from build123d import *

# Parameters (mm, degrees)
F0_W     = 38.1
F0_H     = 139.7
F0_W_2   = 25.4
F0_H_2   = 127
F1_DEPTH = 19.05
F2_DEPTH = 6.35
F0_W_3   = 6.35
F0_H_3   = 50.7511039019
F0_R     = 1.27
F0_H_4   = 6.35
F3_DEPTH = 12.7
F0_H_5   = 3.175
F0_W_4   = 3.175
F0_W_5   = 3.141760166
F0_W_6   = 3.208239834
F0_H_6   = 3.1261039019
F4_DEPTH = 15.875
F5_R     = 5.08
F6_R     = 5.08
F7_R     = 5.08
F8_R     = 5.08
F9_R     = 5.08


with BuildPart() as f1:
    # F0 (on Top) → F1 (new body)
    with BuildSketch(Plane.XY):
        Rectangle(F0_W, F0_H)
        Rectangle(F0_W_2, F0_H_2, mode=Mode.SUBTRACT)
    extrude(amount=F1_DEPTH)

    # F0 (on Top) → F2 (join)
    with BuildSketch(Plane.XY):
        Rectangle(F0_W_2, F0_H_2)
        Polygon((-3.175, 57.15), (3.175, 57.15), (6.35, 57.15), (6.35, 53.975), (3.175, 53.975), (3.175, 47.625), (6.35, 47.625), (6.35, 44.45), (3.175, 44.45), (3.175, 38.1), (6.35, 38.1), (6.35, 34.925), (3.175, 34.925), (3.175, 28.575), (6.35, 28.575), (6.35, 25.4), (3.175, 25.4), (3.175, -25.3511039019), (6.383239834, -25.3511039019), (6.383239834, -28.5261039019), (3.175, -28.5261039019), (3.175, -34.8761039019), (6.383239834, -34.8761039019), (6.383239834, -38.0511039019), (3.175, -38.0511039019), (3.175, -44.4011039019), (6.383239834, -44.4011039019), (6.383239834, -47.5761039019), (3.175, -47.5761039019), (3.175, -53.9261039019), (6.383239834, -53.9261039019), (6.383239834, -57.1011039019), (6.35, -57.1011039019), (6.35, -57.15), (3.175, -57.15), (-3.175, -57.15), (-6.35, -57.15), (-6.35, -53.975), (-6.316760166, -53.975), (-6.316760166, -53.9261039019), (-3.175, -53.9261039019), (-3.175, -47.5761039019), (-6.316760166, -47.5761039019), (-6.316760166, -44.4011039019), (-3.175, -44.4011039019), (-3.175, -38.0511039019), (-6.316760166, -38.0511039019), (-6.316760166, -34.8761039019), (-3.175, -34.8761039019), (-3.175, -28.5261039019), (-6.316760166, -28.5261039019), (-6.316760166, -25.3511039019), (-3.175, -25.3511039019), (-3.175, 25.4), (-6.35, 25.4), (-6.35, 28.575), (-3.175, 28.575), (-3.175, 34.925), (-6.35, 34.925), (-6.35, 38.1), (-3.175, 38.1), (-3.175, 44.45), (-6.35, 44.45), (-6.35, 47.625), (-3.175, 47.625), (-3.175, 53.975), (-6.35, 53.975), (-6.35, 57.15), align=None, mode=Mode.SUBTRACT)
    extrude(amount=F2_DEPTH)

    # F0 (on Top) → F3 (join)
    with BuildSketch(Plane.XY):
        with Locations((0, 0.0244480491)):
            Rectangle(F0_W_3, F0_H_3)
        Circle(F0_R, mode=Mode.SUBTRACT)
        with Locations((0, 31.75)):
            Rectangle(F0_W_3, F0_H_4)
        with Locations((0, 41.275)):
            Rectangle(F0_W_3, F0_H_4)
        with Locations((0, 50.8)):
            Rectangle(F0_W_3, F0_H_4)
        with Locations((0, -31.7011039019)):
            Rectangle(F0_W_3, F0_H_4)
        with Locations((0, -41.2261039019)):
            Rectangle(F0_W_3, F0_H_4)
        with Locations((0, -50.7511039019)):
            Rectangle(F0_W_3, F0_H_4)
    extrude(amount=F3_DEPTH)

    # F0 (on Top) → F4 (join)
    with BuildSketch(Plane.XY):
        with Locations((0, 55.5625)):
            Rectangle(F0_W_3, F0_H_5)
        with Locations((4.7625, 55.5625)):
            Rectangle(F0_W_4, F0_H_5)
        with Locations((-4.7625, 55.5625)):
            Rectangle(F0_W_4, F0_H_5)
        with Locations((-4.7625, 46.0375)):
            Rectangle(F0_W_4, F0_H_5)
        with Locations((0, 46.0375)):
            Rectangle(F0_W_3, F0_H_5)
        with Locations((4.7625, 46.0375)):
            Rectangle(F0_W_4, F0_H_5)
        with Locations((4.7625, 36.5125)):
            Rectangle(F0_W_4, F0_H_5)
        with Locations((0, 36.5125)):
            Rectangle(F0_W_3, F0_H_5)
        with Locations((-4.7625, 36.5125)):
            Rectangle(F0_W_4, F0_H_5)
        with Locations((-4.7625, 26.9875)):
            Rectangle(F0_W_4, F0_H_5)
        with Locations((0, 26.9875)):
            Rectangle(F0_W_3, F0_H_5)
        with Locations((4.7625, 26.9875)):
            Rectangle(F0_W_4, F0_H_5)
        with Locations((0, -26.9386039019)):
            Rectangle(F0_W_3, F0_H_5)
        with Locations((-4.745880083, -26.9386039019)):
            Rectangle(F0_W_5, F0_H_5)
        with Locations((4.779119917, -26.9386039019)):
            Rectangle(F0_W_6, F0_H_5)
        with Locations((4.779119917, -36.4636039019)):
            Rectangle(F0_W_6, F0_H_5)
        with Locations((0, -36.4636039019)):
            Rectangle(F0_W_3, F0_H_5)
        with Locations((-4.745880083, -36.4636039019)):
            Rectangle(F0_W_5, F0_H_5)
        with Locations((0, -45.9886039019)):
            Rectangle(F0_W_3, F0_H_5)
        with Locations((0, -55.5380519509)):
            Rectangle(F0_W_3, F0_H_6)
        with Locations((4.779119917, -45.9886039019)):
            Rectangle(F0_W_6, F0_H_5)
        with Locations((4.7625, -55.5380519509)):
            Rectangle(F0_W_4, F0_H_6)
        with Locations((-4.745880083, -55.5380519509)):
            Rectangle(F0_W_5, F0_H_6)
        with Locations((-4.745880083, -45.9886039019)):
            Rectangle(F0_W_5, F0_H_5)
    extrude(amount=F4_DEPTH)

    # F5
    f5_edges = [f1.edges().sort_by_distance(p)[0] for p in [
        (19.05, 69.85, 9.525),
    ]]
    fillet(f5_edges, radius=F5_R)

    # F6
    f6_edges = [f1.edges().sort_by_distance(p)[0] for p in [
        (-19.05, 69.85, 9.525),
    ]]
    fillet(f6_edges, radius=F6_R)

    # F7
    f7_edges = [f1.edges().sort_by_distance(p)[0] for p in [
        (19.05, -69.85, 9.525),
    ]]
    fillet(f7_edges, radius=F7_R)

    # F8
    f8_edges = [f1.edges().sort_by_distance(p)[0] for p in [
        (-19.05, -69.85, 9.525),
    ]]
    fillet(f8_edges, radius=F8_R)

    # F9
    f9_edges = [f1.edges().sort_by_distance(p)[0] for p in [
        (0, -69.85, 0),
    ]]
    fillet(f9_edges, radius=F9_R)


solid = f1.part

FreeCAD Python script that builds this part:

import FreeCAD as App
import Part
import Sketcher
from FreeCAD import Vector
Q = App.Units.Quantity


def edges_at(feature, points):
    """Names of the edges that pass closest to the given points."""
    edges = feature.Shape.Edges
    near = lambda p: min(range(len(edges)), key=lambda i: edges[i].distToShape(Part.Vertex(*p))[0])
    return sorted({f"Edge{near(p) + 1}" for p in points})


def add_polygon(sketch, points):
    """Adds a closed chain of lines whose ends are joined by coincident constraints."""
    first, n = sketch.GeometryCount, len(points)
    for a, b in zip(points, points[1:] + points[:1]):
        sketch.addGeometry(Part.LineSegment(App.Vector(*a, 0), App.Vector(*b, 0)), False)
    for i in range(n):
        sketch.addConstraint(Sketcher.Constraint("Coincident", first + i, 2, first + (i + 1) % n, 1))

doc = App.newDocument("Part")
params = doc.addObject("Spreadsheet::Sheet", "Params")
for row, (alias, value) in enumerate([
    ("sketch1_width", "1 in"),
    ("sketch1_height", "5 in"),
    ("sketch1_width2", "1.5 in"),
    ("sketch1_height2", "5.5 in"),
    ("pad1_length", "0.75 in"),
    ("sketch2_width", "1 in"),
    ("sketch2_height", "5 in"),
    ("sketch2_width2", "0.5 in"),
    ("sketch2_height2", "0.25 in"),
    ("pad2_length", "0.25 in"),
    ("sketch3_diameter", "0.1 in"),
    ("sketch3_width", "0.25 in"),
    ("pad3_length", "0.5 in"),
    ("sketch4_width", "0.5 in"),
    ("sketch4_height", "0.125 in"),
    ("pad4_length", "0.625 in"),
    ("fillet_radius", "0.2 in"),
    ("fillet2_radius", "0.2 in"),
    ("fillet3_radius", "0.2 in"),
    ("fillet4_radius", "0.2 in"),
    ("fillet5_radius", "0.2 in"),
], start=1):
    params.set(f"A{row}", alias)
    params.set(f"B{row}", "=" + value)
    params.setAlias(f"B{row}", alias)

body = doc.addObject("PartDesign::Body", "Body")
body.AllowCompound = True

# Sketch on XY plane
sketch1 = doc.addObject("Sketcher::SketchObject", "Sketch")
body.addObject(sketch1)
sketch1.AttachmentSupport = (doc.XY_Plane, [""])
sketch1.MapMode = "FlatFace"
add_polygon(sketch1, [(-19, 70), (-19, -70), (19, -70), (19, 70)])  # lines 0-3
add_polygon(sketch1, [(13, -64), (-13, -64), (-13, 64), (13, 64)])  # lines 4-7
sketch1.addConstraint([
    Sketcher.Constraint("Vertical", 0),
    Sketcher.Constraint("Horizontal", 1),
    Sketcher.Constraint("Vertical", 2),
    Sketcher.Constraint("Horizontal", 3),
    Sketcher.Constraint("Horizontal", 4),
    Sketcher.Constraint("Vertical", 5),
    Sketcher.Constraint("Horizontal", 6),
    Sketcher.Constraint("Vertical", 7),
    Sketcher.Constraint("Symmetric", 0, 2, 2, 2, -1, 1),
    Sketcher.Constraint("Symmetric", 4, 2, 6, 2, -1, 1),
    Sketcher.Constraint("DistanceX", 4, 2, 4, 1, Q("1 in")),
    Sketcher.Constraint("DistanceY", 5, 1, 5, 2, Q("5 in")),
    Sketcher.Constraint("DistanceX", 1, 1, 1, 2, Q("1.5 in")),
    Sketcher.Constraint("DistanceY", 0, 2, 0, 1, Q("5.5 in")),
])
sketch1.setExpression("Constraints[18]", "Params.sketch1_width")
sketch1.setExpression("Constraints[19]", "Params.sketch1_height")
sketch1.setExpression("Constraints[20]", "Params.sketch1_width2")
sketch1.setExpression("Constraints[21]", "Params.sketch1_height2")
pad1 = doc.addObject("PartDesign::Pad", "Pad")
body.addObject(pad1)
pad1.Profile = sketch1
pad1.setExpression("Length", "Params.pad1_length")

# Sketch on XY plane
sketch2 = doc.addObject("Sketcher::SketchObject", "Sketch001")
body.addObject(sketch2)
sketch2.AttachmentSupport = (doc.XY_Plane, [""])
sketch2.MapMode = "FlatFace"
add_polygon(sketch2, [(-12.7, 63.5), (-12.7, -63.5), (12.7, -63.5), (12.7, 63.5)])  # lines 0-3
add_polygon(sketch2, [(-6.35, 57.15), (6.35, 57.15), (6.35, 53.975), (3.175, 53.975), (3.175, 47.625), (6.35, 47.625), (6.35, 44.45), (3.175, 44.45), (3.175, 38.1), (6.35, 38.1), (6.35, 34.925), (3.175, 34.925), (3.175, 28.575), (6.35, 28.575), (6.35, 25.4), (3.175, 25.4), (3.175, -25.351), (6.383, -25.351), (6.383, -28.526), (3.175, -28.526), (3.175, -34.876), (6.383, -34.876), (6.383, -38.051), (3.175, -38.051), (3.175, -44.401), (6.383, -44.401), (6.383, -47.576), (3.175, -47.576), (3.175, -53.926), (6.383, -53.926), (6.383, -57.101), (6.35, -57.101), (6.35, -57.15), (-6.35, -57.15), (-6.35, -53.975), (-6.317, -53.975), (-6.317, -53.926), (-3.175, -53.926), (-3.175, -47.576), (-6.317, -47.576), (-6.317, -44.401), (-3.175, -44.401), (-3.175, -38.051), (-6.317, -38.051), (-6.317, -34.876), (-3.175, -34.876), (-3.175, -28.526), (-6.317, -28.526), (-6.317, -25.351), (-3.175, -25.351), (-3.175, 25.4), (-6.35, 25.4), (-6.35, 28.575), (-3.175, 28.575), (-3.175, 34.925), (-6.35, 34.925), (-6.35, 38.1), (-3.175, 38.1), (-3.175, 44.45), (-6.35, 44.45), (-6.35, 47.625), (-3.175, 47.625), (-3.175, 53.975), (-6.35, 53.975)])  # lines 4-67
sketch2.addConstraint([
    Sketcher.Constraint("Vertical", 0),
    Sketcher.Constraint("Horizontal", 1),
    Sketcher.Constraint("Vertical", 2),
    Sketcher.Constraint("Horizontal", 3),
    Sketcher.Constraint("Horizontal", 4),
    Sketcher.Constraint("Vertical", 5),
    Sketcher.Constraint("Horizontal", 6),
    Sketcher.Constraint("Vertical", 7),
    Sketcher.Constraint("Horizontal", 8),
    Sketcher.Constraint("Vertical", 9),
    Sketcher.Constraint("Horizontal", 10),
    Sketcher.Constraint("Vertical", 11),
    Sketcher.Constraint("Horizontal", 12),
    Sketcher.Constraint("Vertical", 13),
    Sketcher.Constraint("Horizontal", 14),
    Sketcher.Constraint("Vertical", 15),
    Sketcher.Constraint("Horizontal", 16),
    Sketcher.Constraint("Vertical", 17),
    Sketcher.Constraint("Horizontal", 18),
    Sketcher.Constraint("Vertical", 19),
    Sketcher.Constraint("Horizontal", 20),
    Sketcher.Constraint("Vertical", 21),
    Sketcher.Constraint("Horizontal", 22),
    Sketcher.Constraint("Vertical", 23),
    Sketcher.Constraint("Horizontal", 24),
    Sketcher.Constraint("Vertical", 25),
    Sketcher.Constraint("Horizontal", 26),
    Sketcher.Constraint("Vertical", 27),
    Sketcher.Constraint("Horizontal", 28),
    Sketcher.Constraint("Vertical", 29),
    Sketcher.Constraint("Horizontal", 30),
    Sketcher.Constraint("Vertical", 31),
    Sketcher.Constraint("Horizontal", 32),
    Sketcher.Constraint("Vertical", 33),
    Sketcher.Constraint("Horizontal", 34),
    Sketcher.Constraint("Vertical", 35),
    Sketcher.Constraint("Horizontal", 36),
    Sketcher.Constraint("Vertical", 37),
    Sketcher.Constraint("Horizontal", 38),
    Sketcher.Constraint("Vertical", 39),
    Sketcher.Constraint("Horizontal", 40),
    Sketcher.Constraint("Vertical", 41),
    Sketcher.Constraint("Horizontal", 42),
    Sketcher.Constraint("Vertical", 43),
    Sketcher.Constraint("Horizontal", 44),
    Sketcher.Constraint("Vertical", 45),
    Sketcher.Constraint("Horizontal", 46),
    Sketcher.Constraint("Vertical", 47),
    Sketcher.Constraint("Horizontal", 48),
    Sketcher.Constraint("Vertical", 49),
    Sketcher.Constraint("Horizontal", 50),
    Sketcher.Constraint("Vertical", 51),
    Sketcher.Constraint("Horizontal", 52),
    Sketcher.Constraint("Vertical", 53),
    Sketcher.Constraint("Horizontal", 54),
    Sketcher.Constraint("Vertical", 55),
    Sketcher.Constraint("Horizontal", 56),
    Sketcher.Constraint("Vertical", 57),
    Sketcher.Constraint("Horizontal", 58),
    Sketcher.Constraint("Vertical", 59),
    Sketcher.Constraint("Horizontal", 60),
    Sketcher.Constraint("Vertical", 61),
    Sketcher.Constraint("Horizontal", 62),
    Sketcher.Constraint("Vertical", 63),
    Sketcher.Constraint("Horizontal", 64),
    Sketcher.Constraint("Vertical", 65),
    Sketcher.Constraint("Horizontal", 66),
    Sketcher.Constraint("Vertical", 67),
    Sketcher.Constraint("Symmetric", 0, 2, 2, 2, -1, 1),
    Sketcher.Constraint("Symmetric", 4, 2, 36, 2, -1, 1),
    Sketcher.Constraint("Symmetric", 31, 2, 40, 2, -2),
    Sketcher.Constraint("Symmetric", 27, 2, 44, 2, -2),
    Sketcher.Constraint("Symmetric", 23, 2, 48, 2, -2),
    Sketcher.Constraint("Symmetric", 19, 2, 52, 2, -2),
    Sketcher.Constraint("Symmetric", 17, 2, 54, 2, -2),
    Sketcher.Constraint("Symmetric", 15, 2, 56, 2, -2),
    Sketcher.Constraint("Symmetric", 13, 2, 58, 2, -2),
    Sketcher.Constraint("Symmetric", 11, 2, 60, 2, -2),
    Sketcher.Constraint("Symmetric", 9, 2, 62, 2, -2),
    Sketcher.Constraint("Symmetric", 7, 2, 64, 2, -2),
    Sketcher.Constraint("Symmetric", 5, 2, 66, 2, -2),
    Sketcher.Constraint("Horizontal", 30, 2, 41, 2),
    Sketcher.Constraint("Horizontal", 26, 2, 45, 2),
    Sketcher.Constraint("Horizontal", 22, 2, 49, 2),
    Sketcher.Constraint("Vertical", 5, 2, 8, 2),
    Sketcher.Constraint("Vertical", 7, 2, 10, 2),
    Sketcher.Constraint("Vertical", 9, 2, 12, 2),
    Sketcher.Constraint("Vertical", 11, 2, 14, 2),
    Sketcher.Constraint("Vertical", 13, 2, 16, 2),
    Sketcher.Constraint("Vertical", 15, 2, 18, 2),
    Sketcher.Constraint("Vertical", 19, 2, 22, 2),
    Sketcher.Constraint("Vertical", 21, 2, 24, 2),
    Sketcher.Constraint("Vertical", 23, 2, 26, 2),
    Sketcher.Constraint("Vertical", 25, 2, 28, 2),
    Sketcher.Constraint("Vertical", 27, 2, 30, 2),
    Sketcher.Constraint("Vertical", 29, 2, 32, 2),
    Sketcher.Constraint("Vertical", 17, 2, 34, 2),
    Sketcher.Constraint("Vertical", 39, 2, 42, 2),
    Sketcher.Constraint("Vertical", 43, 2, 46, 2),
    Sketcher.Constraint("Vertical", 47, 2, 50, 2),
    Sketcher.Constraint("Equal", 34, 38),
    Sketcher.Constraint("Equal", 66, 5),
    Sketcher.Constraint("Equal", 5, 9),
    Sketcher.Constraint("Equal", 7, 11),
    Sketcher.Constraint("Equal", 9, 13),
    Sketcher.Constraint("Equal", 11, 15),
    Sketcher.Constraint("Equal", 13, 17),
    Sketcher.Constraint("Equal", 17, 21),
    Sketcher.Constraint("Equal", 15, 23),
    Sketcher.Constraint("Equal", 21, 25),
    Sketcher.Constraint("Equal", 23, 27),
    Sketcher.Constraint("Equal", 25, 29),
    Sketcher.Constraint("Equal", 27, 31),
    Sketcher.Constraint("Equal", 29, 33),
    Sketcher.Constraint("Equal", 33, 37),
    Sketcher.Constraint("DistanceX", 1, 1, 1, 2, Q("1 in")),
    Sketcher.Constraint("DistanceY", 0, 2, 0, 1, Q("5 in")),
    Sketcher.Constraint("DistanceX", 4, 1, 4, 2, Q("0.5 in")),
    Sketcher.Constraint("DistanceY", -1, 1, 17, 2, Q("1 in")),
    Sketcher.Constraint("DistanceY", 7, 2, 7, 1, Q("0.25 in")),
    Sketcher.Constraint("DistanceY", -1, 1, 11, 2, Q("1.5 in")),
    Sketcher.Constraint("DistanceX", 20, 1, 20, 2, 3.20824),
    Sketcher.Constraint("DistanceY", 19, 2, 19, 1, 50.751104),
])
sketch2.setExpression("Constraints[183]", "Params.sketch2_width")
sketch2.setExpression("Constraints[184]", "Params.sketch2_height")
sketch2.setExpression("Constraints[185]", "Params.sketch2_width2")
sketch2.setExpression("Constraints[187]", "Params.sketch2_height2")
pad2 = doc.addObject("PartDesign::Pad", "Pad001")
body.addObject(pad2)
pad2.Profile = sketch2
pad2.setExpression("Length", "Params.pad2_length")

# Sketch on XY plane
sketch3 = doc.addObject("Sketcher::SketchObject", "Sketch002")
body.addObject(sketch3)
sketch3.AttachmentSupport = (doc.XY_Plane, [""])
sketch3.MapMode = "FlatFace"
add_polygon(sketch3, [(-3.2, 25.4), (-3.2, -25.4), (3.2, -25.4), (3.2, 25.4)])  # lines 0-3
sketch3.addGeometry(Part.Circle(Vector(0, 0, 0), Vector(0, 0, 1), 1.3), False)  # 4
add_polygon(sketch3, [(-3.2, 34.9), (-3.2, 28.6), (3.2, 28.6), (3.2, 34.9)])  # lines 5-8
add_polygon(sketch3, [(-3.2, 44.5), (-3.2, 38.1), (3.2, 38.1), (3.2, 44.5)])  # lines 9-12
add_polygon(sketch3, [(-3.2, 54), (-3.2, 47.6), (3.2, 47.6), (3.2, 54)])  # lines 13-16
add_polygon(sketch3, [(-3.2, -28.5), (-3.2, -34.9), (3.2, -34.9), (3.2, -28.5)])  # lines 17-20
add_polygon(sketch3, [(-3.2, -38.1), (-3.2, -44.4), (3.2, -44.4), (3.2, -38.1)])  # lines 21-24
add_polygon(sketch3, [(-3.2, -47.6), (-3.2, -53.9), (3.2, -53.9), (3.2, -47.6)])  # lines 25-28
sketch3.addConstraint([
    Sketcher.Constraint("Vertical", 0),
    Sketcher.Constraint("Horizontal", 1),
    Sketcher.Constraint("Vertical", 2),
    Sketcher.Constraint("Horizontal", 3),
    Sketcher.Constraint("Vertical", 5),
    Sketcher.Constraint("Horizontal", 6),
    Sketcher.Constraint("Vertical", 7),
    Sketcher.Constraint("Horizontal", 8),
    Sketcher.Constraint("Vertical", 9),
    Sketcher.Constraint("Horizontal", 10),
    Sketcher.Constraint("Vertical", 11),
    Sketcher.Constraint("Horizontal", 12),
    Sketcher.Constraint("Vertical", 13),
    Sketcher.Constraint("Horizontal", 14),
    Sketcher.Constraint("Vertical", 15),
    Sketcher.Constraint("Horizontal", 16),
    Sketcher.Constraint("Vertical", 17),
    Sketcher.Constraint("Horizontal", 18),
    Sketcher.Constraint("Vertical", 19),
    Sketcher.Constraint("Horizontal", 20),
    Sketcher.Constraint("Vertical", 21),
    Sketcher.Constraint("Horizontal", 22),
    Sketcher.Constraint("Vertical", 23),
    Sketcher.Constraint("Horizontal", 24),
    Sketcher.Constraint("Vertical", 25),
    Sketcher.Constraint("Horizontal", 26),
    Sketcher.Constraint("Vertical", 27),
    Sketcher.Constraint("Horizontal", 28),
    Sketcher.Constraint("Coincident", 4, 3, -1, 1),
    Sketcher.Constraint("Vertical", 3, 2, 5, 2),
    Sketcher.Constraint("Vertical", 2, 2, 6, 2),
    Sketcher.Constraint("Vertical", 8, 2, 9, 2),
    Sketcher.Constraint("Vertical", 7, 2, 10, 2),
    Sketcher.Constraint("Vertical", 12, 2, 13, 2),
    Sketcher.Constraint("Vertical", 11, 2, 14, 2),
    Sketcher.Constraint("Vertical", 16, 2, 17, 2),
    Sketcher.Constraint("Vertical", 15, 2, 18, 2),
    Sketcher.Constraint("Vertical", 20, 2, 21, 2),
    Sketcher.Constraint("Vertical", 19, 2, 22, 2),
    Sketcher.Constraint("Vertical", 24, 2, 25, 2),
    Sketcher.Constraint("Vertical", 23, 2, 26, 2),
    Sketcher.Constraint("Equal", 28, 5),
    Sketcher.Constraint("Equal", 7, 9),
    Sketcher.Constraint("Equal", 11, 13),
    Sketcher.Constraint("Equal", 15, 17),
    Sketcher.Constraint("Equal", 19, 21),
    Sketcher.Constraint("Equal", 23, 25),
    Sketcher.Constraint("Diameter", 4, Q("0.1 in")),
    Sketcher.Constraint("DistanceY", -1, 1, 2, 2, Q("1 in")),
    Sketcher.Constraint("DistanceX", 1, 1, 1, 2, Q("0.25 in")),
    Sketcher.Constraint("DistanceY", -1, 1, 9, 2, Q("1.5 in")),
    Sketcher.Constraint("DistanceY", 8, 2, 13, 2, Q("0.5 in")),
    Sketcher.Constraint("DistanceY", 21, 2, 0, 2, Q("0.75 in")),
    Sketcher.Constraint("DistanceY", 25, 2, 17, 2, Q("0.75 in")),
    Sketcher.Constraint("DistanceX", 0, 2, -1, 1, Q("0.125 in")),
    Sketcher.Constraint("DistanceY", -1, 1, 5, 2, Q("1.125 in")),
    Sketcher.Constraint("DistanceY", 17, 2, 0, 2, Q("0.375 in")),
    Sketcher.Constraint("DistanceY", 0, 2, 0, 1, 50.751104),
])
sketch3.setExpression("Constraints[75]", "Params.sketch3_diameter")
sketch3.setExpression("Constraints[77]", "Params.sketch3_width")
pad3 = doc.addObject("PartDesign::Pad", "Pad002")
body.addObject(pad3)
pad3.Profile = sketch3
pad3.setExpression("Length", "Params.pad3_length")

# Sketch on XY plane
sketch4 = doc.addObject("Sketcher::SketchObject", "Sketch003")
body.addObject(sketch4)
sketch4.AttachmentSupport = (doc.XY_Plane, [""])
sketch4.MapMode = "FlatFace"
add_polygon(sketch4, [(6.3, 54), (6.3, 57.1), (-6.3, 57.1), (-6.3, 54)])  # lines 0-3
add_polygon(sketch4, [(-6.3, 47.6), (-6.3, 44.5), (6.3, 44.5), (6.3, 47.6)])  # lines 4-7
add_polygon(sketch4, [(6.3, 34.9), (6.3, 38.1), (-6.3, 38.1), (-6.3, 34.9)])  # lines 8-11
add_polygon(sketch4, [(-6.3, 28.6), (-6.3, 25.4), (6.3, 25.4), (6.3, 28.6)])  # lines 12-15
add_polygon(sketch4, [(-6.3, -25.4), (-6.3, -28.5), (6.4, -28.5), (6.4, -25.4)])  # lines 16-19
add_polygon(sketch4, [(6.4, -38.1), (6.4, -34.9), (-6.3, -34.9), (-6.3, -38.1)])  # lines 20-23
add_polygon(sketch4, [(6.4, -47.6), (6.4, -44.4), (-6.3, -44.4), (-6.3, -47.6)])  # lines 24-27
add_polygon(sketch4, [(6.3, -57.1), (6.3, -54), (-6.3, -54), (-6.3, -57.1)])  # lines 28-31
sketch4.addConstraint([
    Sketcher.Constraint("Vertical", 0),
    Sketcher.Constraint("Horizontal", 1),
    Sketcher.Constraint("Vertical", 2),
    Sketcher.Constraint("Horizontal", 3),
    Sketcher.Constraint("Vertical", 4),
    Sketcher.Constraint("Horizontal", 5),
    Sketcher.Constraint("Vertical", 6),
    Sketcher.Constraint("Horizontal", 7),
    Sketcher.Constraint("Vertical", 8),
    Sketcher.Constraint("Horizontal", 9),
    Sketcher.Constraint("Vertical", 10),
    Sketcher.Constraint("Horizontal", 11),
    Sketcher.Constraint("Vertical", 12),
    Sketcher.Constraint("Horizontal", 13),
    Sketcher.Constraint("Vertical", 14),
    Sketcher.Constraint("Horizontal", 15),
    Sketcher.Constraint("Vertical", 16),
    Sketcher.Constraint("Horizontal", 17),
    Sketcher.Constraint("Vertical", 18),
    Sketcher.Constraint("Horizontal", 19),
    Sketcher.Constraint("Vertical", 20),
    Sketcher.Constraint("Horizontal", 21),
    Sketcher.Constraint("Vertical", 22),
    Sketcher.Constraint("Horizontal", 23),
    Sketcher.Constraint("Vertical", 24),
    Sketcher.Constraint("Horizontal", 25),
    Sketcher.Constraint("Vertical", 26),
    Sketcher.Constraint("Horizontal", 27),
    Sketcher.Constraint("Vertical", 28),
    Sketcher.Constraint("Horizontal", 29),
    Sketcher.Constraint("Vertical", 30),
    Sketcher.Constraint("Horizontal", 31),
    Sketcher.Constraint("Symmetric", 2, 2, 28, 2, -1, 1),
    Sketcher.Constraint("Vertical", 2, 2, 4, 2),
    Sketcher.Constraint("Vertical", 3, 2, 5, 2),
    Sketcher.Constraint("Vertical", 6, 2, 8, 2),
    Sketcher.Constraint("Vertical", 7, 2, 9, 2),
    Sketcher.Constraint("Vertical", 10, 2, 12, 2),
    Sketcher.Constraint("Vertical", 11, 2, 13, 2),
    Sketcher.Constraint("Vertical", 18, 2, 20, 2),
    Sketcher.Constraint("Vertical", 19, 2, 21, 2),
    Sketcher.Constraint("Vertical", 23, 2, 24, 2),
    Sketcher.Constraint("Vertical", 22, 2, 25, 2),
    Sketcher.Constraint("Vertical", 14, 2, 28, 2),
    Sketcher.Constraint("Vertical", 26, 2, 29, 2),
    Sketcher.Constraint("Equal", 15, 17),
    Sketcher.Constraint("Equal", 2, 4),
    Sketcher.Constraint("Equal", 6, 8),
    Sketcher.Constraint("Equal", 10, 12),
    Sketcher.Constraint("Equal", 14, 16),
    Sketcher.Constraint("Equal", 18, 20),
    Sketcher.Constraint("Equal", 22, 24),
    Sketcher.Constraint("DistanceX", 1, 2, 1, 1, Q("0.5 in")),
    Sketcher.Constraint("DistanceY", -1, 1, 12, 2, Q("1 in")),
    Sketcher.Constraint("DistanceY", -1, 1, 8, 2, Q("1.5 in")),
    Sketcher.Constraint("DistanceY", 4, 2, 1, 2, Q("0.5 in")),
    Sketcher.Constraint("DistanceY", 10, 2, 7, 2, Q("0.5 in")),
    Sketcher.Constraint("DistanceY", 22, 2, 19, 2, Q("0.5 in")),
    Sketcher.Constraint("DistanceY", 26, 2, 21, 2, Q("0.5 in")),
    Sketcher.Constraint("DistanceY", 30, 2, 25, 2, Q("0.5 in")),
    Sketcher.Constraint("DistanceY", 0, 1, 0, 2, Q("0.125 in")),
    Sketcher.Constraint("DistanceX", 29, 2, 29, 1, 12.66676),
    Sketcher.Constraint("DistanceY", 28, 1, 28, 2, 3.126104),
])
sketch4.setExpression("Constraints[84]", "Params.sketch4_width")
sketch4.setExpression("Constraints[92]", "Params.sketch4_height")
pad4 = doc.addObject("PartDesign::Pad", "Pad003")
body.addObject(pad4)
pad4.Profile = sketch4
pad4.setExpression("Length", "Params.pad4_length")
doc.recompute()

fillet = doc.addObject("PartDesign::Fillet", "Fillet")
body.addObject(fillet)
fillet.Base = (pad4, edges_at(pad4, [(19.05, 69.85, 9.525)]))
fillet.setExpression("Radius", "Params.fillet_radius")
doc.recompute()

fillet2 = doc.addObject("PartDesign::Fillet", "Fillet001")
body.addObject(fillet2)
fillet2.Base = (fillet, edges_at(fillet, [(-19.05, 69.85, 9.525)]))
fillet2.setExpression("Radius", "Params.fillet2_radius")
doc.recompute()

fillet3 = doc.addObject("PartDesign::Fillet", "Fillet002")
body.addObject(fillet3)
fillet3.Base = (fillet2, edges_at(fillet2, [(19.05, -69.85, 9.525)]))
fillet3.setExpression("Radius", "Params.fillet3_radius")
doc.recompute()

fillet4 = doc.addObject("PartDesign::Fillet", "Fillet003")
body.addObject(fillet4)
fillet4.Base = (fillet3, edges_at(fillet3, [(-19.05, -69.85, 9.525)]))
fillet4.setExpression("Radius", "Params.fillet4_radius")
doc.recompute()

fillet5 = doc.addObject("PartDesign::Fillet", "Fillet004")
body.addObject(fillet5)
fillet5.Base = (fillet4, edges_at(fillet4, [(0, -69.85, 0)]))
fillet5.setExpression("Radius", "Params.fillet5_radius")

doc.recompute()
